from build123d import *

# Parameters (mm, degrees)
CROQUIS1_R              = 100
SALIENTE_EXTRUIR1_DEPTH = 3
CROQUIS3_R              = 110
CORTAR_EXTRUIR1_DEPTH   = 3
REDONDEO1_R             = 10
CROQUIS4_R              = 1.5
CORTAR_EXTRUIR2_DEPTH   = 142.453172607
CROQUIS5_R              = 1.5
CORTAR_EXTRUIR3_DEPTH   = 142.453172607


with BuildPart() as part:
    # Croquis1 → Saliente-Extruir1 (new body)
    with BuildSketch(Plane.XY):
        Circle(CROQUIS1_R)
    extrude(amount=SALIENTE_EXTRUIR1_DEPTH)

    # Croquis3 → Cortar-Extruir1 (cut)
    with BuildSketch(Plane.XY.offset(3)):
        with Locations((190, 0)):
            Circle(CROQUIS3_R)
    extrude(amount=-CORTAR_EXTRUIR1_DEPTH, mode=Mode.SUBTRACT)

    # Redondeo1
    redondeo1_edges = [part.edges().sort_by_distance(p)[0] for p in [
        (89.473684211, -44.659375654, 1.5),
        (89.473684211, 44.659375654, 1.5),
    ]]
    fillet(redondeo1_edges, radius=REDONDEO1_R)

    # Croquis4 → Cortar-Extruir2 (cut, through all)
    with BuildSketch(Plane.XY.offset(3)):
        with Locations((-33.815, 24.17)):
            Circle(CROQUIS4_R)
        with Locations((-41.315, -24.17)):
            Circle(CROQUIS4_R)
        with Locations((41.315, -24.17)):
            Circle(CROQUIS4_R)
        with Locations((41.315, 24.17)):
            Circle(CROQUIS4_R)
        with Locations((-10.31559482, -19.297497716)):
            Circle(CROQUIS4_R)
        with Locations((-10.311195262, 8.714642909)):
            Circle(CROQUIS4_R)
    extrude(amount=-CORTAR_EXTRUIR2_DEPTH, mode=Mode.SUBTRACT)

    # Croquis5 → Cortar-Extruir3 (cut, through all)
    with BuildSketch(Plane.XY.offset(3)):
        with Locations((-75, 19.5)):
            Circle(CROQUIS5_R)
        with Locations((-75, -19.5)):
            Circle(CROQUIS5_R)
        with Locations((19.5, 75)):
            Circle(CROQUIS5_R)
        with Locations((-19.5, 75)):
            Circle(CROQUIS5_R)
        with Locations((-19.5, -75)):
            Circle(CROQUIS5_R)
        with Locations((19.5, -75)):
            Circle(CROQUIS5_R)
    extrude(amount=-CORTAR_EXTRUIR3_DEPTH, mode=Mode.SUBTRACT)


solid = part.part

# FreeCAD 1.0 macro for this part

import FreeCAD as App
import Part
import Sketcher


def edges_at(feature, points):
    """Names of the edges that pass closest to the given points."""
    edges = feature.Shape.Edges
    near = lambda p: min(range(len(edges)), key=lambda i: edges[i].distToShape(Part.Vertex(*p))[0])
    return sorted({f"Edge{near(p) + 1}" for p in points})

doc = App.newDocument("Part")
params = doc.addObject("Spreadsheet::Sheet", "Params")
for row, (alias, value) in enumerate([
    ("sketch1_diameter", "200 mm"),
    ("pad1_length", "3 mm"),
    ("sketch2_diameter", "220 mm"),
    ("pocket1_length", "3 mm"),
    ("fillet_radius", "10 mm"),
    ("sketch3_diameter", "3 mm"),
    ("sketch4_diameter", "3 mm"),
], start=1):
    params.set(f"A{row}", alias)
    params.set(f"B{row}", "=" + value)
    params.setAlias(f"B{row}", alias)

body = doc.addObject("PartDesign::Body", "Body")

# Sketch on XY plane
sketch1 = doc.addObject("Sketcher::SketchObject", "Sketch")
body.addObject(sketch1)
sketch1.AttachmentSupport = (doc.XY_Plane, [""])
sketch1.MapMode = "FlatFace"
sketch1.addGeometry(Part.Circle(App.Vector(0, 0, 0), App.Vector(0, 0, 1), 100), False)
sketch1.addConstraint([
    Sketcher.Constraint("Coincident", 0, 3, -1, 1),
    Sketcher.Constraint("Diameter", 0, 200.0),
])
sketch1.setExpression("Constraints[1]", "Params.sketch1_diameter")
pad1 = doc.addObject("PartDesign::Pad", "Pad")
body.addObject(pad1)
pad1.Profile = sketch1
pad1.setExpression("Length", "Params.pad1_length")

# Sketch on XY plane
sketch2 = doc.addObject("Sketcher::SketchObject", "Sketch001")
body.addObject(sketch2)
sketch2.AttachmentSupport = (doc.XY_Plane, [""])
sketch2.MapMode = "FlatFace"
sketch2.AttachmentOffset = App.Placement(App.Vector(0, 0, 3), App.Rotation())
sketch2.addGeometry(Part.Circle(App.Vector(190, 0, 0), App.Vector(0, 0, 1), 110), False)
sketch2.addConstraint([
    Sketcher.Constraint("PointOnObject", 0, 3, -1),
    Sketcher.Constraint("Diameter", 0, 220.0),
    Sketcher.Constraint("DistanceX", -1, 1, 0, 3, 190.0),
])
sketch2.setExpression("Constraints[1]", "Params.sketch2_diameter")
pocket1 = doc.addObject("PartDesign::Pocket", "Pocket")
body.addObject(pocket1)
pocket1.Profile = sketch2
pocket1.setExpression("Length", "Params.pocket1_length")
doc.recompute()

fillet = doc.addObject("PartDesign::Fillet", "Fillet")
body.addObject(fillet)
fillet.Base = (pocket1, edges_at(pocket1, [(89.474, -44.659, 1.5), (89.474, 44.659, 1.5)]))
fillet.setExpression("Radius", "Params.fillet_radius")

# Sketch on XY plane
sketch3 = doc.addObject("Sketcher::SketchObject", "Sketch002")
body.addObject(sketch3)
sketch3.AttachmentSupport = (doc.XY_Plane, [""])
sketch3.MapMode = "FlatFace"
sketch3.AttachmentOffset = App.Placement(App.Vector(0, 0, 3), App.Rotation())
sketch3.addGeometry([
    Part.Circle(App.Vector(-33.8, 24.2, 0), App.Vector(0, 0, 1), 1.5),  # 0
    Part.Circle(App.Vector(-41.3, -24.2, 0), App.Vector(0, 0, 1), 1.5),  # 1
    Part.Circle(App.Vector(41.3, -24.2, 0), App.Vector(0, 0, 1), 1.5),  # 2
    Part.Circle(App.Vector(41.3, 24.2, 0), App.Vector(0, 0, 1), 1.5),  # 3
    Part.Circle(App.Vector(-10.3, -19.3, 0), App.Vector(0, 0, 1), 1.5),  # 4
    Part.Circle(App.Vector(-10.3, 8.7, 0), App.Vector(0, 0, 1), 1.5),  # 5
], False)
sketch3.addConstraint([
    Sketcher.Constraint("Equal", 0, 1),
    Sketcher.Constraint("Equal", 1, 2),
    Sketcher.Constraint("Equal", 2, 3),
    Sketcher.Constraint("Equal", 3, 4),
    Sketcher.Constraint("Equal", 4, 5),
    Sketcher.Constraint("Symmetric", 1, 3, 3, 3, -1, 1),
    Sketcher.Constraint("Symmetric", 1, 3, 2, 3, -2),
    Sketcher.Constraint("Horizontal", 0, 3, 3, 3),
    Sketcher.Constraint("Diameter", 0, 3.0),
    Sketcher.Constraint("DistanceX", 1, 3, 0, 3, 7.5),
    Sketcher.Constraint("DistanceY", -1, 1, 0, 3, 24.17),
    Sketcher.Constraint("DistanceX", 1, 3, 2, 3, 82.63),
    Sketcher.Constraint("DistanceX", 4, 3, 5, 3, 0.0044),
    Sketcher.Constraint("DistanceY", 4, 3, 5, 3, 28.012141),
    Sketcher.Constraint("DistanceX", 4, 3, -1, 1, 10.315595),
    Sketcher.Constraint("DistanceY", 4, 3, -1, 1, 19.297498),
])
sketch3.setExpression("Constraints[8]", "Params.sketch3_diameter")
pocket2 = doc.addObject("PartDesign::Pocket", "Pocket001")
body.addObject(pocket2)
pocket2.Profile = sketch3
pocket2.Type = "ThroughAll"

# Sketch on XY plane
sketch4 = doc.addObject("Sketcher::SketchObject", "Sketch003")
body.addObject(sketch4)
sketch4.AttachmentSupport = (doc.XY_Plane, [""])
sketch4.MapMode = "FlatFace"
sketch4.AttachmentOffset = App.Placement(App.Vector(0, 0, 3), App.Rotation())
sketch4.addGeometry([
    Part.Circle(App.Vector(-75, 19.5, 0), App.Vector(0, 0, 1), 1.5),  # 0
    Part.Circle(App.Vector(-75, -19.5, 0), App.Vector(0, 0, 1), 1.5),  # 1
    Part.Circle(App.Vector(19.5, 75, 0), App.Vector(0, 0, 1), 1.5),  # 2
    Part.Circle(App.Vector(-19.5, 75, 0), App.Vector(0, 0, 1), 1.5),  # 3
    Part.Circle(App.Vector(-19.5, -75, 0), App.Vector(0, 0, 1), 1.5),  # 4
    Part.Circle(App.Vector(19.5, -75, 0), App.Vector(0, 0, 1), 1.5),  # 5
], False)
sketch4.addConstraint([
    Sketcher.Constraint("Equal", 0, 1),
    Sketcher.Constraint("Equal", 1, 2),
    Sketcher.Constraint("Equal", 2, 3),
    Sketcher.Constraint("Equal", 3, 4),
    Sketcher.Constraint("Equal", 4, 5),
    Sketcher.Constraint("Symmetric", 2, 3, 4, 3, -1, 1),
    Sketcher.Constraint("Symmetric", 3, 3, 5, 3, -1, 1),
    Sketcher.Constraint("Symmetric", 2, 3, 3, 3, -2),
    Sketcher.Constraint("Symmetric", 0, 3, 1, 3, -1),
    Sketcher.Constraint("Diameter", 0, 3.0),
    Sketcher.Constraint("DistanceX", 0, 3, -1, 1, 75.0),
    Sketcher.Constraint("DistanceY", -1, 1, 2, 3, 75.0),
    Sketcher.Constraint("DistanceY", 1, 3, 0, 3, 39.0),
    Sketcher.Constraint("DistanceX", 3, 3, 2, 3, 39.0),
])
sketch4.setExpression("Constraints[9]", "Params.sketch4_diameter")
pocket3 = doc.addObject("PartDesign::Pocket", "Pocket002")
body.addObject(pocket3)
pocket3.Profile = sketch4
pocket3.Type = "ThroughAll"

doc.recompute()
